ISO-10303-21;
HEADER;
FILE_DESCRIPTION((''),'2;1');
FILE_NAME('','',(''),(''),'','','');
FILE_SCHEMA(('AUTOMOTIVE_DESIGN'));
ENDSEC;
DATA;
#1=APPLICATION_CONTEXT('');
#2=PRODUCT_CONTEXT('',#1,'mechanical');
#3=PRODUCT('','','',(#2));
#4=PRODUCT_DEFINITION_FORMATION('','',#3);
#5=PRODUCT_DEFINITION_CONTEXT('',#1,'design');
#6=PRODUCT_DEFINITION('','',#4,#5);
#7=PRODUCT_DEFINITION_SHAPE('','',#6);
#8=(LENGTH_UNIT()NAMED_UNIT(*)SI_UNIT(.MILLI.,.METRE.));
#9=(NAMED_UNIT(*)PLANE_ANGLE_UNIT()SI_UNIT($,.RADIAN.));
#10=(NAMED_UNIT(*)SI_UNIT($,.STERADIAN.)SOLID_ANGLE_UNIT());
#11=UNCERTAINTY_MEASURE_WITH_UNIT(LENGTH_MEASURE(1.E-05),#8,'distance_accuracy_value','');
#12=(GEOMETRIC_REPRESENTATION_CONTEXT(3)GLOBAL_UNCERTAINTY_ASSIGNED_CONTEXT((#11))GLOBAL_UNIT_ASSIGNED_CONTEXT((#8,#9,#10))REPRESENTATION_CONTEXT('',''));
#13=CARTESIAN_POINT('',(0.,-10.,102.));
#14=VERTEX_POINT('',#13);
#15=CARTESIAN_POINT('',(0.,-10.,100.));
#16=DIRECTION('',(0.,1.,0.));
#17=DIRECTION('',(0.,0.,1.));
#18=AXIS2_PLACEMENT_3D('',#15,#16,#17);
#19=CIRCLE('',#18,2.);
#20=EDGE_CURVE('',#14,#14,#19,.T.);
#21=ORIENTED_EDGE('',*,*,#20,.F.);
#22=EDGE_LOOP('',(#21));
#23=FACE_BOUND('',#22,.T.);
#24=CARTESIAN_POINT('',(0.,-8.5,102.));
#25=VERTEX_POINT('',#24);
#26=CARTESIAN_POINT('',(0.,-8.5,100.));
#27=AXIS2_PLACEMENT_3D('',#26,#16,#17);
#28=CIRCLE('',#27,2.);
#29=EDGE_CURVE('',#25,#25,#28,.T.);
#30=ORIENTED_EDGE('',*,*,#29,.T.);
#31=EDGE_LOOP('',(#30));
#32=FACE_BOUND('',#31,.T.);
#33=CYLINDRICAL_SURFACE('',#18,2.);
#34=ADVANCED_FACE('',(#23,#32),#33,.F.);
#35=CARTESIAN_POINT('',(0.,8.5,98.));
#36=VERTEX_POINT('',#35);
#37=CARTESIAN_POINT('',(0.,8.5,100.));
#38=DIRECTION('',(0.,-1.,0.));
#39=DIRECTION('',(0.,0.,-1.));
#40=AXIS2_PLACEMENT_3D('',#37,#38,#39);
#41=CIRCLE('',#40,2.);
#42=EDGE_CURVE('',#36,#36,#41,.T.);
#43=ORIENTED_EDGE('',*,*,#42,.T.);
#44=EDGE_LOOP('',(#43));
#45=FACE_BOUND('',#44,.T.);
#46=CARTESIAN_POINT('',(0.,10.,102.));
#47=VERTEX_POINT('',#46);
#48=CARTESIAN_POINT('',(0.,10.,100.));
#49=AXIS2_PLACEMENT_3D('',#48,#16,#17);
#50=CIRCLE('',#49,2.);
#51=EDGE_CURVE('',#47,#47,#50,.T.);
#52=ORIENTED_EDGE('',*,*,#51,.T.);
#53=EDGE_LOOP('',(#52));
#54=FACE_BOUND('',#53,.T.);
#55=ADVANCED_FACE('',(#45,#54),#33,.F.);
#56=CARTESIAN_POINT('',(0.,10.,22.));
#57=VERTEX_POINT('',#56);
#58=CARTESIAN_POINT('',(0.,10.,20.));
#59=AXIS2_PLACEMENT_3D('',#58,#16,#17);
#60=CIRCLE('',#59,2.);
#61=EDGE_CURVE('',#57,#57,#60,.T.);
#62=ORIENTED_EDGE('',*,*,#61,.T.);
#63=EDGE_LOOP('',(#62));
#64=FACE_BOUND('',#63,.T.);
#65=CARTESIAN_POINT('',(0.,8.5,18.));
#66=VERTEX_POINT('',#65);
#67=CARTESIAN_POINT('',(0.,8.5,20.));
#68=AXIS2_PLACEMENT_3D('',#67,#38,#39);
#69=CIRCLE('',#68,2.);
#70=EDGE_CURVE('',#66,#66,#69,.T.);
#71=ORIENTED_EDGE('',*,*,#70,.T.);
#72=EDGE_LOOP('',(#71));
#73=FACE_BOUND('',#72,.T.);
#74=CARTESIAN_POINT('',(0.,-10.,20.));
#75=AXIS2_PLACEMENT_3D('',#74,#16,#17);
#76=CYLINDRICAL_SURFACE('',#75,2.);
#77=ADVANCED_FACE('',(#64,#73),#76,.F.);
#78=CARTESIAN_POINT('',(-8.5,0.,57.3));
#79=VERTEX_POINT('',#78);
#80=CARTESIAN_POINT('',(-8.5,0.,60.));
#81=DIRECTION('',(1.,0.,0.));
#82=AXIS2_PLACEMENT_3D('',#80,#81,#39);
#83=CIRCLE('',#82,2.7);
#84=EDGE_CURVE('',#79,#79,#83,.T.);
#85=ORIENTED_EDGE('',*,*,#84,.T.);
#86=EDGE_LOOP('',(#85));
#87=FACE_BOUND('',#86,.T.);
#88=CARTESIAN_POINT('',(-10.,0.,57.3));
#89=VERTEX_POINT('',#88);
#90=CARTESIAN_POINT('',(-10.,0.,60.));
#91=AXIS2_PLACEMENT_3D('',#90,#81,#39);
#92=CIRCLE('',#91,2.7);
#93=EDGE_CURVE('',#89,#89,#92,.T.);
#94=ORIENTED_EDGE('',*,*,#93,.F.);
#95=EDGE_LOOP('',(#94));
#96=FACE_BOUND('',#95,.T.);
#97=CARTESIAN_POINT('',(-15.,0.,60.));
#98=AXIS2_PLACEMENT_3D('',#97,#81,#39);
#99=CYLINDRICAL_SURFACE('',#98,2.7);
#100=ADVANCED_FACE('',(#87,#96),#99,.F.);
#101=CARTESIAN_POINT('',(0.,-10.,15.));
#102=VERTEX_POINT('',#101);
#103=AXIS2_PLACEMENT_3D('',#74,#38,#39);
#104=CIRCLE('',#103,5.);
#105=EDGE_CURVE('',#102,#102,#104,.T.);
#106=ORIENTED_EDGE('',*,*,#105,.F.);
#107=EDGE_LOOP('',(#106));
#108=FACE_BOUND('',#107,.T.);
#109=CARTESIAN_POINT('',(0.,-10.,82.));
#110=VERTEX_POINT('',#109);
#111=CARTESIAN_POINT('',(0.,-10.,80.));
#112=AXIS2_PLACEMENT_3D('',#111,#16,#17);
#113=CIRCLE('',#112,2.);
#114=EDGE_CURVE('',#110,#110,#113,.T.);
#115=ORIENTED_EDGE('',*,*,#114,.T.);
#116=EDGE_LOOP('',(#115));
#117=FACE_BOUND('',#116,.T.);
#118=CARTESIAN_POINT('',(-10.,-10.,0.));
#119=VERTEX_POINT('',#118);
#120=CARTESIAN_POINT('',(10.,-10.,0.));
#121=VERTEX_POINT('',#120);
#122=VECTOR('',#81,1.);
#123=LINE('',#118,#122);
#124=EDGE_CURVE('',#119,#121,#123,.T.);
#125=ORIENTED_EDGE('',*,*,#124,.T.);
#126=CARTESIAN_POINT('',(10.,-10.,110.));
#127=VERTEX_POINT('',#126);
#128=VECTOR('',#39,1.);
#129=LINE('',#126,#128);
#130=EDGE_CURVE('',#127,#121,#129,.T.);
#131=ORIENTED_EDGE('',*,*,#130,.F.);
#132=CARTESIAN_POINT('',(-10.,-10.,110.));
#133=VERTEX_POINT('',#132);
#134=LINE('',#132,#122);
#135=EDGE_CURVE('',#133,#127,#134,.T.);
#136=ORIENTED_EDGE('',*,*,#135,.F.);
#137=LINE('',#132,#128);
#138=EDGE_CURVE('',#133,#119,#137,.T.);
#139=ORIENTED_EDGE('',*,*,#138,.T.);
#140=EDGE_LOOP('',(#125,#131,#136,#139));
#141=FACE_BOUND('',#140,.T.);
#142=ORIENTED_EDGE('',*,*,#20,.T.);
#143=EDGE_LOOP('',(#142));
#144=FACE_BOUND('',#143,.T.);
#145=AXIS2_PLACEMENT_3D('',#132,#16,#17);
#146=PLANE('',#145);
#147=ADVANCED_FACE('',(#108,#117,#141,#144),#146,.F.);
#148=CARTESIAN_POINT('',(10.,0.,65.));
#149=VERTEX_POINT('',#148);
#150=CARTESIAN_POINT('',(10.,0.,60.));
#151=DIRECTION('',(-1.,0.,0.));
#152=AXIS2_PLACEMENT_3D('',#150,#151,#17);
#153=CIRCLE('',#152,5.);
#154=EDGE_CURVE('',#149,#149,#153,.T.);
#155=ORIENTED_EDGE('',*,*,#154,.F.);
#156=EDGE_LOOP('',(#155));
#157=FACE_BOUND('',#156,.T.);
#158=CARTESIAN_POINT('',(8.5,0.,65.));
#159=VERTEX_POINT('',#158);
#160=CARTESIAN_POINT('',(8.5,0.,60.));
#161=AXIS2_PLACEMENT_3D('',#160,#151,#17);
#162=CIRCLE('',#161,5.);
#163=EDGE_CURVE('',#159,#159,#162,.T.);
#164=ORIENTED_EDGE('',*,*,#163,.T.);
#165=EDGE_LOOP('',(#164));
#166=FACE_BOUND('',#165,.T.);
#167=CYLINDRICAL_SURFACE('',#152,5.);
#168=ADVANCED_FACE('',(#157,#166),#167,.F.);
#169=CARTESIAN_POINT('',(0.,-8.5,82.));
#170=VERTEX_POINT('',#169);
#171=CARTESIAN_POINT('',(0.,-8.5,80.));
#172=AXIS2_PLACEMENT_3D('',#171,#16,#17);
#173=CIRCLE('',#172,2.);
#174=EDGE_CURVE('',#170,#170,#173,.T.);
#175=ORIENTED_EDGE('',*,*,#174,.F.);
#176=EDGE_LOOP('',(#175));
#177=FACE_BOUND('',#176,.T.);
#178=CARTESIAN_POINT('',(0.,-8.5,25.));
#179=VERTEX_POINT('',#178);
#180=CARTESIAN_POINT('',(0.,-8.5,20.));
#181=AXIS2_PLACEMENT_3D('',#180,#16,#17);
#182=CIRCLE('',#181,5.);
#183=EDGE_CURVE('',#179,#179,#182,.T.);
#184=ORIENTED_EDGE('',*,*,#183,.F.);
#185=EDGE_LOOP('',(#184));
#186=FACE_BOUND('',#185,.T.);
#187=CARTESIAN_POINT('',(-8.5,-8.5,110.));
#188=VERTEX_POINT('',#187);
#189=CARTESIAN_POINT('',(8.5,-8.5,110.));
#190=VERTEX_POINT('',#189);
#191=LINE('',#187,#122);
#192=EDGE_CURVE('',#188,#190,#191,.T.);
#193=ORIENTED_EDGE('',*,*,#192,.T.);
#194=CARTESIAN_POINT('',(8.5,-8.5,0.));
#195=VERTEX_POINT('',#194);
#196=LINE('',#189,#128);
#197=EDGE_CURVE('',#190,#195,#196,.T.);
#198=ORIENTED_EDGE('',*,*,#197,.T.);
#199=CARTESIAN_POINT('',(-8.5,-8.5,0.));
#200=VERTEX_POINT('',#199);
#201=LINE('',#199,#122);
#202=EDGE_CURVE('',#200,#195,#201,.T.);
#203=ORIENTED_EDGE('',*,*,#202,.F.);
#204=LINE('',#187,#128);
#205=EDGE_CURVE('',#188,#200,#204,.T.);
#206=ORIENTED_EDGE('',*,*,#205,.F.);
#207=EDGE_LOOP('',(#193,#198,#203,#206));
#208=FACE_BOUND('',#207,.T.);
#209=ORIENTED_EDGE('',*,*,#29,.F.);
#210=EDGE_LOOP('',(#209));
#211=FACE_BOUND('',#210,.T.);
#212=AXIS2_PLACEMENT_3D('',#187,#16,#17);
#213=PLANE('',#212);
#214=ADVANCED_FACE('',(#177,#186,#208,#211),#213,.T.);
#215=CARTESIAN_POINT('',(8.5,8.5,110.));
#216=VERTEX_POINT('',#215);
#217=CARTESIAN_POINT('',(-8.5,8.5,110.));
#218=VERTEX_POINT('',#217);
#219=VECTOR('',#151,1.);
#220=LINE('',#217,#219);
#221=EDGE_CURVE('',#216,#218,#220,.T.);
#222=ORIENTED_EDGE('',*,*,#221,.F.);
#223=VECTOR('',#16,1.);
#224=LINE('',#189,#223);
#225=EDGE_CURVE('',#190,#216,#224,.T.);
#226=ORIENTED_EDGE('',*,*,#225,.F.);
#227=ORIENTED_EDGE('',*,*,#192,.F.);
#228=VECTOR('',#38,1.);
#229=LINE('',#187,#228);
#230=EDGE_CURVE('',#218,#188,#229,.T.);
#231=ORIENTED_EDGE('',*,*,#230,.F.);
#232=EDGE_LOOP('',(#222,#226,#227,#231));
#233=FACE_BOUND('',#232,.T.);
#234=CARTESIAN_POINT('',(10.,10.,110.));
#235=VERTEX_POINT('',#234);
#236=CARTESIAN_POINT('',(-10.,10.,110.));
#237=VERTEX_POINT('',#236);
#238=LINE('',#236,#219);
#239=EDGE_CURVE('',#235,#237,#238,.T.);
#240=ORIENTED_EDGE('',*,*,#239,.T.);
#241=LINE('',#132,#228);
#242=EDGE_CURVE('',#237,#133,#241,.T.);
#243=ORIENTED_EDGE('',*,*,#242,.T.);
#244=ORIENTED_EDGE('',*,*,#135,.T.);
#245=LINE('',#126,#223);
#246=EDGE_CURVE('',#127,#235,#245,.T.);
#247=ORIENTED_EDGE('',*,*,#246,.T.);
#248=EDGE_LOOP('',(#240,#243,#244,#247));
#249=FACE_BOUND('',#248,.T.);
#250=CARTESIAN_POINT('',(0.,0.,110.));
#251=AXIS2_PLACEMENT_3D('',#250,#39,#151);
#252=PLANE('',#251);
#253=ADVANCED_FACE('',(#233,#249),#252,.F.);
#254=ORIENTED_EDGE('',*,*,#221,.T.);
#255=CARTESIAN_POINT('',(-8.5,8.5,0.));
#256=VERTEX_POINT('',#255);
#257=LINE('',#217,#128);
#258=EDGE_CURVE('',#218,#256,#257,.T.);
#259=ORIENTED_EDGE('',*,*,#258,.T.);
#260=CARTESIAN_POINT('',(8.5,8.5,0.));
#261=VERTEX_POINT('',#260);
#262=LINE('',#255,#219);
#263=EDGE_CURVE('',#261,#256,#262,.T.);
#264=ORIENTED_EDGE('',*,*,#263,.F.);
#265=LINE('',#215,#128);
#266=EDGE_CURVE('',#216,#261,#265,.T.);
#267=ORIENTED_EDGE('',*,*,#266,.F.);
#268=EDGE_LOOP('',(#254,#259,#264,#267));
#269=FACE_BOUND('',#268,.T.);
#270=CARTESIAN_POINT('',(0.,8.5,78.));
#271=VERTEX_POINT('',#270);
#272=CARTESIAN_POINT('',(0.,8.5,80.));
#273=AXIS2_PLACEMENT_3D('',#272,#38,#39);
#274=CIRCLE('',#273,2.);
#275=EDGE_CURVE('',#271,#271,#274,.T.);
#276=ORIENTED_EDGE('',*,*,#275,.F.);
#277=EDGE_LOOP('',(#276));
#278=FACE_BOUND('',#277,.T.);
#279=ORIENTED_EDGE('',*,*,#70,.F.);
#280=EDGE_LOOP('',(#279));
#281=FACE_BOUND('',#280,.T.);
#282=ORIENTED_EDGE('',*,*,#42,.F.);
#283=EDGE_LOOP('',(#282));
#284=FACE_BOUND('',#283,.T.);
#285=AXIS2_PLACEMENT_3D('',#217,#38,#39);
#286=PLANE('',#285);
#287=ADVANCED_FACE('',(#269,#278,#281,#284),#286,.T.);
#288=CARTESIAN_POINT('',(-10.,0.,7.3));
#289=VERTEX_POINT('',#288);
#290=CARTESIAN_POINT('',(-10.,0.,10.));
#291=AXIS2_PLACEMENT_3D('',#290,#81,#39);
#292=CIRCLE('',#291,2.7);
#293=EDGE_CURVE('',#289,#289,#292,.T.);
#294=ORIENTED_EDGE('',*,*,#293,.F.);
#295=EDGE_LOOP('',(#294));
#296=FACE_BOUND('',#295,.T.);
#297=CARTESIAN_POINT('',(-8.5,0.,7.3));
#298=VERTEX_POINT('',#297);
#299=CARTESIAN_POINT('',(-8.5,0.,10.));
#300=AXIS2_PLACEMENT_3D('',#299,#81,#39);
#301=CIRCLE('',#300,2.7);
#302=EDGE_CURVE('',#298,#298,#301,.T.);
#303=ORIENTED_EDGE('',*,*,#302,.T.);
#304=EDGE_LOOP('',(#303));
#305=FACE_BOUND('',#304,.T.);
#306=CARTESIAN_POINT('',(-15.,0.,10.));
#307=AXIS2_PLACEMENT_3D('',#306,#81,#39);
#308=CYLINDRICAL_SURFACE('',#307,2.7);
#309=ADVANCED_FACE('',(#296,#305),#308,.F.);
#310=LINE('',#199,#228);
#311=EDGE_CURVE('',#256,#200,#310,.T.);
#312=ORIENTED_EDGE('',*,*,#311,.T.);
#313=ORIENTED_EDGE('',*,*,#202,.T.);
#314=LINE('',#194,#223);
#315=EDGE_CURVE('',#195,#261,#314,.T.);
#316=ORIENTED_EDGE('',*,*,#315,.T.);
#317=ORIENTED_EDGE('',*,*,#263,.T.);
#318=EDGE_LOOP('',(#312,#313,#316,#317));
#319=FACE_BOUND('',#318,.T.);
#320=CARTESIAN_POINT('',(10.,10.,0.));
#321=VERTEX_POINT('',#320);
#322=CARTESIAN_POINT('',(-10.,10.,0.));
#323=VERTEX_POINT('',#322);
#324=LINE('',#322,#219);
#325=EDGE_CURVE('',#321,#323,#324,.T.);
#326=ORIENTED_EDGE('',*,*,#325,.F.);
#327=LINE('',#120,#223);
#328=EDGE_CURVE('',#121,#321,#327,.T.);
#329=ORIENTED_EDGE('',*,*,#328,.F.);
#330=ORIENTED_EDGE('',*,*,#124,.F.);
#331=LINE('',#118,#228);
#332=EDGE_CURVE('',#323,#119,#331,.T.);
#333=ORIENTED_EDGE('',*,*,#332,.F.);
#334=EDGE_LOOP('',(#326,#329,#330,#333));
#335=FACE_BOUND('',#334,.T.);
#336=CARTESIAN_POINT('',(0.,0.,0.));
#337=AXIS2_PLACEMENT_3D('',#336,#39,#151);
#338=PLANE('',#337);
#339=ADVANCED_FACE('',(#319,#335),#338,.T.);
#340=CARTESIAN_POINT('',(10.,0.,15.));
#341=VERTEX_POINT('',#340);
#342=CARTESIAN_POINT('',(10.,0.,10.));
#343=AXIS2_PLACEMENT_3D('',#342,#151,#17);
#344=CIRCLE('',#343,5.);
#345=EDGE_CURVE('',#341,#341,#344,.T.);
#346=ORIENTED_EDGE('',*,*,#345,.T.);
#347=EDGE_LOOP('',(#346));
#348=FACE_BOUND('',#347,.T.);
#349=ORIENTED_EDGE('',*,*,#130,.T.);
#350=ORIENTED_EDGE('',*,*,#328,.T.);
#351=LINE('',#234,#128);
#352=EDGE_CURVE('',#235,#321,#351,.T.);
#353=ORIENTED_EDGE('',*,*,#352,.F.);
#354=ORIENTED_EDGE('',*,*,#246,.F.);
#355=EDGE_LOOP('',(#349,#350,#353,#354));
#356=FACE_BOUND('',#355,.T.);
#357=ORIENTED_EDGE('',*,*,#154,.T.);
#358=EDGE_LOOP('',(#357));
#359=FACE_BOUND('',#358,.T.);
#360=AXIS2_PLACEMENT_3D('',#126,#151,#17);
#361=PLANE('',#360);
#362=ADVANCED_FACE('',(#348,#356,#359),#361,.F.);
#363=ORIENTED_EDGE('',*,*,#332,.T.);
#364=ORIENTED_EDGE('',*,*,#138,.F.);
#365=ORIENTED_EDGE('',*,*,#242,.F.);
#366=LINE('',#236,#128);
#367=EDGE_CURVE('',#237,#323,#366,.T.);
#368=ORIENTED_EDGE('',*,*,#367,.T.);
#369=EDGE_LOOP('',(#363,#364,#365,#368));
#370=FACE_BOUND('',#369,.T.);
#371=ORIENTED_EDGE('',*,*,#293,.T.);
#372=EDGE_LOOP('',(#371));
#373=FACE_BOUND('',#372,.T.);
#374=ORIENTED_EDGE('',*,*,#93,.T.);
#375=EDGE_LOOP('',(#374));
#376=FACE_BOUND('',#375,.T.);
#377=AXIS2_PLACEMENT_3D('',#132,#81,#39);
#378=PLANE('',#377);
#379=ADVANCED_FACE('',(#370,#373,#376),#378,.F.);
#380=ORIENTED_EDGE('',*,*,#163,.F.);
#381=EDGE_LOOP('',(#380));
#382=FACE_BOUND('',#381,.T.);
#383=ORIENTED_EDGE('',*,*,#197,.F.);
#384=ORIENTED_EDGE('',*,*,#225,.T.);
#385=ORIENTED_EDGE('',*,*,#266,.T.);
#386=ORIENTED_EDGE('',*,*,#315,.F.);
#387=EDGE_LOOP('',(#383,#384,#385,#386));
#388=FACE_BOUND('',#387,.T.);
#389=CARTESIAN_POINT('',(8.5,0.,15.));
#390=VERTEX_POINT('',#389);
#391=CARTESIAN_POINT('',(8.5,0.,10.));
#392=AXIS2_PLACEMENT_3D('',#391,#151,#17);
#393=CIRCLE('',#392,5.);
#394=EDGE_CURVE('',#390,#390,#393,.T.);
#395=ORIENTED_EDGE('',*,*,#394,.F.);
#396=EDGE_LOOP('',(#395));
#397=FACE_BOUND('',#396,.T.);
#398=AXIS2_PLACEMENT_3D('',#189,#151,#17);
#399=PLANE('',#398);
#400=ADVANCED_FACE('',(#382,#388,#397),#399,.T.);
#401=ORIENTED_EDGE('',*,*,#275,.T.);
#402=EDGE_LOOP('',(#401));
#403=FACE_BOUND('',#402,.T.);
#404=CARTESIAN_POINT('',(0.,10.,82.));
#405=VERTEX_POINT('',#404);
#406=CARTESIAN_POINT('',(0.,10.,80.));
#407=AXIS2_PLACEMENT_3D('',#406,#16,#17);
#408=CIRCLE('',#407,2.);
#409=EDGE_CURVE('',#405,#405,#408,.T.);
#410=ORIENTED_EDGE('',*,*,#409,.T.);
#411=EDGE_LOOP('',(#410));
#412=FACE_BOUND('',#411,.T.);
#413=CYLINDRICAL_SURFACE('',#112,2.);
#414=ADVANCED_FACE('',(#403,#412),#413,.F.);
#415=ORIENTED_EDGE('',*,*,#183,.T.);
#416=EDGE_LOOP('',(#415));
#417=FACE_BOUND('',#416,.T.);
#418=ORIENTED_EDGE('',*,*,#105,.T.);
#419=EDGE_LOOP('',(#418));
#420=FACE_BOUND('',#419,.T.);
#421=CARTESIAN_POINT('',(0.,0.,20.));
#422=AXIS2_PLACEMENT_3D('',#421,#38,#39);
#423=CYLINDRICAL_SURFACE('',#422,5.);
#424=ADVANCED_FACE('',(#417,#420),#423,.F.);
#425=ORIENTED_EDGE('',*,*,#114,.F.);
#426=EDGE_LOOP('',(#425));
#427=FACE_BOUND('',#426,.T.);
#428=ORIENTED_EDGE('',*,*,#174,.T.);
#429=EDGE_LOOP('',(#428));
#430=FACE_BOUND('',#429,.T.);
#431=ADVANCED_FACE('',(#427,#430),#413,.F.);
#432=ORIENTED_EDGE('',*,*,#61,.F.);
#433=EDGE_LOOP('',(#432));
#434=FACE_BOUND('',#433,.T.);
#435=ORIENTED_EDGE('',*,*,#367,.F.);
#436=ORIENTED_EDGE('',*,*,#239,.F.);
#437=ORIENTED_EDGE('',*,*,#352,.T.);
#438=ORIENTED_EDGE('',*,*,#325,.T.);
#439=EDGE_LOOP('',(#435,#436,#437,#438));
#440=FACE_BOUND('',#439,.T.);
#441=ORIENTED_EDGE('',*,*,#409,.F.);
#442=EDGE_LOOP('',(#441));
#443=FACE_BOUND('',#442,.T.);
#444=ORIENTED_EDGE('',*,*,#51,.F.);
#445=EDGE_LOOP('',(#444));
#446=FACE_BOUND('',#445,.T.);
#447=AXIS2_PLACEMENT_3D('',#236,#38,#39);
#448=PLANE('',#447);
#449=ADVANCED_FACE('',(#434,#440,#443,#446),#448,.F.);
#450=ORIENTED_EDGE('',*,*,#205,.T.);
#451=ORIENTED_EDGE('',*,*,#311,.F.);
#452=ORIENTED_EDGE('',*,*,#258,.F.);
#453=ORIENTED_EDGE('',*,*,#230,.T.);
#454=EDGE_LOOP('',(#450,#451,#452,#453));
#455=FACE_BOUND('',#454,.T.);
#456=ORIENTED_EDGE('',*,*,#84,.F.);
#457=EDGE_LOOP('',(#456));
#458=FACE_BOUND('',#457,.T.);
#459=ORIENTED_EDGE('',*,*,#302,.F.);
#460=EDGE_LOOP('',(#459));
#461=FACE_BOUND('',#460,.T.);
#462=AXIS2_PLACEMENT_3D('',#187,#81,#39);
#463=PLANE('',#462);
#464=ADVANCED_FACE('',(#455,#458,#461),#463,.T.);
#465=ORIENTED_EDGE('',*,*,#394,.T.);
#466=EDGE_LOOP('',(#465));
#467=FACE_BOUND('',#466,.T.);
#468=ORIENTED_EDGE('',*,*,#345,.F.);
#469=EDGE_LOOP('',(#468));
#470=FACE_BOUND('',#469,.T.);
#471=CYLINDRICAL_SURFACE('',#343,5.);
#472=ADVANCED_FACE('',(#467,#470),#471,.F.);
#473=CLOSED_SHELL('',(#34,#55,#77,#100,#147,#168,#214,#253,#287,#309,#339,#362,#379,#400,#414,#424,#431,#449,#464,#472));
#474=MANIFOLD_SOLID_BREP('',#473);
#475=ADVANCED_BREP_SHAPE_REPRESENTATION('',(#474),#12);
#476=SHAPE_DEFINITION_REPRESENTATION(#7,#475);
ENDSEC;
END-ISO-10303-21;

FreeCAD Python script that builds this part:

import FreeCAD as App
import Part
import Sketcher
Q = App.Units.Quantity


def add_polygon(sketch, points):
    """Adds a closed chain of lines whose ends are joined by coincident constraints."""
    first, n = sketch.GeometryCount, len(points)
    for a, b in zip(points, points[1:] + points[:1]):
        sketch.addGeometry(Part.LineSegment(App.Vector(*a, 0), App.Vector(*b, 0)), False)
    for i in range(n):
        sketch.addConstraint(Sketcher.Constraint("Coincident", first + i, 2, first + (i + 1) % n, 1))

doc = App.newDocument("Part")
body = doc.addObject("PartDesign::Body", "Body")

# Sketch on XY plane
sketch1 = body.newObject("Sketcher::SketchObject", "Sketch")
sketch1.AttachmentSupport = (doc.getObject("XY_Plane"), [""])
sketch1.MapMode = "FlatFace"
add_polygon(sketch1, [(-10, 10), (-10, -10), (10, -10), (10, 10)])  # lines 0-3
add_polygon(sketch1, [(8, -8), (-8, -8), (-8, 8), (8, 8)])  # lines 4-7
sketch1.addConstraint([
    Sketcher.Constraint("Vertical", 0),
    Sketcher.Constraint("Horizontal", 1),
    Sketcher.Constraint("Vertical", 2),
    Sketcher.Constraint("Horizontal", 3),
    Sketcher.Constraint("Horizontal", 4),
    Sketcher.Constraint("Vertical", 5),
    Sketcher.Constraint("Horizontal", 6),
    Sketcher.Constraint("Vertical", 7),
    Sketcher.Constraint("Symmetric", 0, 2, 2, 2, -1, 1),
    Sketcher.Constraint("Symmetric", 4, 2, 6, 2, -1, 1),
    Sketcher.Constraint("Equal", 3, 0),
    Sketcher.Constraint("Equal", 6, 5),
    Sketcher.Constraint("DistanceX", 1, 1, 1, 2, Q("20 mm")),
    Sketcher.Constraint("DistanceX", 4, 2, 4, 1, Q("17 mm")),
])
pad1 = body.newObject("PartDesign::Pad", "Pad")
pad1.Profile = sketch1
pad1.Length = 110

# Sketch on YZ plane
sketch2 = body.newObject("Sketcher::SketchObject", "Sketch001")
sketch2.AttachmentSupport = (doc.getObject("YZ_Plane"), [""])
sketch2.MapMode = "FlatFace"
sketch2.AttachmentOffset = App.Placement(App.Vector(0, 0, 10), App.Rotation())
sketch2.addGeometry([
    Part.Circle(App.Vector(0, 60, 0), App.Vector(0, 0, 1), 2.7),
    Part.Circle(App.Vector(0, 10, 0), App.Vector(0, 0, 1), 2.7),
], False)
sketch2.addConstraint([
    Sketcher.Constraint("Equal", 0, 1),
    Sketcher.Constraint("PointOnObject", 0, 3, -2),
    Sketcher.Constraint("PointOnObject", 1, 3, -2),
    Sketcher.Constraint("Diameter", 0, Q("5.4 mm")),
    Sketcher.Constraint("DistanceY", -1, 1, 0, 3, Q("60 mm")),
    Sketcher.Constraint("DistanceY", -1, 1, 1, 3, Q("10 mm")),
])
pocket1 = body.newObject("PartDesign::Pocket", "Pocket")
pocket1.Profile = sketch2
pocket1.Length = 25

# Sketch on XZ plane
sketch3 = body.newObject("Sketcher::SketchObject", "Sketch002")
sketch3.AttachmentSupport = (doc.getObject("XZ_Plane"), [""])
sketch3.MapMode = "FlatFace"
sketch3.AttachmentOffset = App.Placement(App.Vector(0, 0, -10), App.Rotation())
sketch3.addGeometry([
    Part.Circle(App.Vector(0, 100, 0), App.Vector(0, 0, 1), 2),
    Part.Circle(App.Vector(0, 80, 0), App.Vector(0, 0, 1), 2),
    Part.Circle(App.Vector(0, 20, 0), App.Vector(0, 0, 1), 2),
], False)
sketch3.addConstraint([
    Sketcher.Constraint("Equal", 0, 1),
    Sketcher.Constraint("Equal", 1, 2),
    Sketcher.Constraint("PointOnObject", 0, 3, -2),
    Sketcher.Constraint("PointOnObject", 1, 3, -2),
    Sketcher.Constraint("PointOnObject", 2, 3, -2),
    Sketcher.Constraint("Diameter", 0, Q("4 mm")),
    Sketcher.Constraint("DistanceY", -1, 1, 0, 3, Q("100 mm")),
    Sketcher.Constraint("DistanceY", -1, 1, 1, 3, Q("80 mm")),
    Sketcher.Constraint("DistanceY", -1, 1, 2, 3, Q("20 mm")),
])
pocket2 = body.newObject("PartDesign::Pocket", "Pocket001")
pocket2.Profile = sketch3
pocket2.Length = 20
pocket2.Reversed = True

# Sketch on XZ plane
sketch4 = body.newObject("Sketcher::SketchObject", "Sketch003")
sketch4.AttachmentSupport = (doc.getObject("XZ_Plane"), [""])
sketch4.MapMode = "FlatFace"
sketch4.AttachmentOffset = App.Placement(App.Vector(0, 0, 10), App.Rotation())
sketch4.addGeometry(Part.Circle(App.Vector(0, 20, 0), App.Vector(0, 0, 1), 5), False)
sketch4.addConstraint([
    Sketcher.Constraint("PointOnObject", 0, 3, -2),
    Sketcher.Constraint("Diameter", 0, Q("10 mm")),
    Sketcher.Constraint("DistanceY", -1, 1, 0, 3, Q("20 mm")),
])
pocket3 = body.newObject("PartDesign::Pocket", "Pocket002")
pocket3.Profile = sketch4
pocket3.Length = 10

# Sketch on YZ plane
sketch5 = body.newObject("Sketcher::SketchObject", "Sketch004")
sketch5.AttachmentSupport = (doc.getObject("YZ_Plane"), [""])
sketch5.MapMode = "FlatFace"
sketch5.addGeometry([
    Part.Circle(App.Vector(0, 10, 0), App.Vector(0, 0, 1), 5),
    Part.Circle(App.Vector(0, 60, 0), App.Vector(0, 0, 1), 5),
], False)
sketch5.addConstraint([
    Sketcher.Constraint("Equal", 0, 1),
    Sketcher.Constraint("PointOnObject", 0, 3, -2),
    Sketcher.Constraint("PointOnObject", 1, 3, -2),
    Sketcher.Constraint("Diameter", 0, Q("10 mm")),
    Sketcher.Constraint("DistanceY", -1, 1, 0, 3, Q("10 mm")),
    Sketcher.Constraint("DistanceY", -1, 1, 1, 3, Q("60 mm")),
])
pocket4 = body.newObject("PartDesign::Pocket", "Pocket003")
pocket4.Profile = sketch5
pocket4.Length = 10
pocket4.Reversed = True

doc.recompute()
